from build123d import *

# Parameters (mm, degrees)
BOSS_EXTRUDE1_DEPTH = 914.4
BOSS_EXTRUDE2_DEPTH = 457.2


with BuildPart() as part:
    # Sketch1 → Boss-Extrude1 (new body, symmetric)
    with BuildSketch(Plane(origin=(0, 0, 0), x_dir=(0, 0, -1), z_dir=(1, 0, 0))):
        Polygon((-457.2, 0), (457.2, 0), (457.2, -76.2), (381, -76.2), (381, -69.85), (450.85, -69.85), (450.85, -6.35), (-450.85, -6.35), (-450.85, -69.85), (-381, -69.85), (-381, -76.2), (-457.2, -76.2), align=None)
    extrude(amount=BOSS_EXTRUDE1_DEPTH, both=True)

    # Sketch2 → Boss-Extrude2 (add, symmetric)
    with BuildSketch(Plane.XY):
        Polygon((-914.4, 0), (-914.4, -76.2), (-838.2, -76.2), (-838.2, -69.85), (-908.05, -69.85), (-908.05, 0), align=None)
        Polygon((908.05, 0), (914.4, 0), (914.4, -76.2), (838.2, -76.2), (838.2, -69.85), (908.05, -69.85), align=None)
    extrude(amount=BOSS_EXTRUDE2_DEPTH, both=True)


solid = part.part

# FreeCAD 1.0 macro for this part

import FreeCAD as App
import Part
import Sketcher
from FreeCAD import Vector
Q = App.Units.Quantity


def add_polygon(sketch, points):
    """Adds a closed chain of lines whose ends are joined by coincident constraints."""
    first, n = sketch.GeometryCount, len(points)
    for a, b in zip(points, points[1:] + points[:1]):
        sketch.addGeometry(Part.LineSegment(App.Vector(*a, 0), App.Vector(*b, 0)), False)
    for i in range(n):
        sketch.addConstraint(Sketcher.Constraint("Coincident", first + i, 2, first + (i + 1) % n, 1))

doc = App.newDocument("Part")
body = doc.addObject("PartDesign::Body", "Body")

sketch1 = body.newObject("Sketcher::SketchObject", "Sketch")
sketch1.AttachmentSupport = (doc.getObject("YZ_Plane"), [""])
sketch1.MapMode = "FlatFace"
add_polygon(sketch1, [(0, -457), (0, 457), (-76, 457), (-76, 381), (-70, 381), (-70, 451), (-6, 451), (-6, -451), (-70, -451), (-70, -381), (-76, -381), (-76, -457)])
sketch1.addConstraint(Sketcher.Constraint("Vertical", 0))
sketch1.addConstraint(Sketcher.Constraint("Horizontal", 1))
sketch1.addConstraint(Sketcher.Constraint("Vertical", 2))
sketch1.addConstraint(Sketcher.Constraint("Horizontal", 3))
sketch1.addConstraint(Sketcher.Constraint("Vertical", 4))
sketch1.addConstraint(Sketcher.Constraint("Horizontal", 5))
sketch1.addConstraint(Sketcher.Constraint("Vertical", 6))
sketch1.addConstraint(Sketcher.Constraint("Horizontal", 7))
sketch1.addConstraint(Sketcher.Constraint("Vertical", 8))
sketch1.addConstraint(Sketcher.Constraint("Horizontal", 9))
sketch1.addConstraint(Sketcher.Constraint("Vertical", 10))
sketch1.addConstraint(Sketcher.Constraint("Horizontal", 11))
sketch1.addConstraint(Sketcher.Constraint("Symmetric", 0, 2, 11, 2, -1, 1))
sketch1.addConstraint(Sketcher.Constraint("Symmetric", 4, 2, 7, 2, -1))
sketch1.addConstraint(Sketcher.Constraint("Symmetric", 2, 2, 9, 2, -1))
sketch1.addConstraint(Sketcher.Constraint("Equal", 11, 2))
sketch1.addConstraint(Sketcher.Constraint("DistanceX", 1, 2, 1, 1, Q("3 in")))
sketch1.addConstraint(Sketcher.Constraint("DistanceY", 0, 1, 0, 2, Q("36 in")))
sketch1.addConstraint(Sketcher.Constraint("DistanceX", 5, 1, 5, 2, Q("2.5 in")))
sketch1.addConstraint(Sketcher.Constraint("DistanceY", 6, 2, 6, 1, Q("35.5 in")))
sketch1.addConstraint(Sketcher.Constraint("DistanceX", 3, 1, 3, 2, Q("0.25 in")))
pad1 = body.newObject("PartDesign::Pad", "Pad")
pad1.Profile = sketch1
pad1.Length = Q("72 in")
pad1.Midplane = True

sketch2 = body.newObject("Sketcher::SketchObject", "Sketch001")
sketch2.AttachmentSupport = (doc.getObject("XY_Plane"), [""])
sketch2.MapMode = "FlatFace"
add_polygon(sketch2, [(-914, 0), (-914, -76), (-838, -76), (-838, -70), (-908, -70), (-908, 0)])
add_polygon(sketch2, [(914, 0), (908, 0), (908, -70), (838, -70), (838, -76), (914, -76)])
sketch2.addConstraint(Sketcher.Constraint("Vertical", 0))
sketch2.addConstraint(Sketcher.Constraint("Horizontal", 1))
sketch2.addConstraint(Sketcher.Constraint("Vertical", 2))
sketch2.addConstraint(Sketcher.Constraint("Horizontal", 3))
sketch2.addConstraint(Sketcher.Constraint("Vertical", 4))
sketch2.addConstraint(Sketcher.Constraint("Horizontal", 5))
sketch2.addConstraint(Sketcher.Constraint("Horizontal", 6))
sketch2.addConstraint(Sketcher.Constraint("Vertical", 7))
sketch2.addConstraint(Sketcher.Constraint("Horizontal", 8))
sketch2.addConstraint(Sketcher.Constraint("Vertical", 9))
sketch2.addConstraint(Sketcher.Constraint("Horizontal", 10))
sketch2.addConstraint(Sketcher.Constraint("Vertical", 11))
sketch2.addConstraint(Sketcher.Constraint("Symmetric", 4, 2, 6, 2, -1, 1))
sketch2.addConstraint(Sketcher.Constraint("Symmetric", 2, 2, 8, 2, -2))
sketch2.addConstraint(Sketcher.Constraint("Symmetric", 0, 2, 10, 2, -2))
sketch2.addConstraint(Sketcher.Constraint("PointOnObject", 4, 2, -1))
sketch2.addConstraint(Sketcher.Constraint("Equal", 10, 0))
sketch2.addConstraint(Sketcher.Constraint("Equal", 6, 2))
sketch2.addConstraint(Sketcher.Constraint("DistanceX", 1, 1, 1, 2, Q("3 in")))
sketch2.addConstraint(Sketcher.Constraint("DistanceX", 0, 2, -1, 1, Q("36 in")))
sketch2.addConstraint(Sketcher.Constraint("DistanceX", 3, 2, 3, 1, Q("2.75 in")))
pad2 = body.newObject("PartDesign::Pad", "Pad001")
pad2.Profile = sketch2
pad2.Length = Q("36 in")
pad2.Midplane = True

doc.recompute()
